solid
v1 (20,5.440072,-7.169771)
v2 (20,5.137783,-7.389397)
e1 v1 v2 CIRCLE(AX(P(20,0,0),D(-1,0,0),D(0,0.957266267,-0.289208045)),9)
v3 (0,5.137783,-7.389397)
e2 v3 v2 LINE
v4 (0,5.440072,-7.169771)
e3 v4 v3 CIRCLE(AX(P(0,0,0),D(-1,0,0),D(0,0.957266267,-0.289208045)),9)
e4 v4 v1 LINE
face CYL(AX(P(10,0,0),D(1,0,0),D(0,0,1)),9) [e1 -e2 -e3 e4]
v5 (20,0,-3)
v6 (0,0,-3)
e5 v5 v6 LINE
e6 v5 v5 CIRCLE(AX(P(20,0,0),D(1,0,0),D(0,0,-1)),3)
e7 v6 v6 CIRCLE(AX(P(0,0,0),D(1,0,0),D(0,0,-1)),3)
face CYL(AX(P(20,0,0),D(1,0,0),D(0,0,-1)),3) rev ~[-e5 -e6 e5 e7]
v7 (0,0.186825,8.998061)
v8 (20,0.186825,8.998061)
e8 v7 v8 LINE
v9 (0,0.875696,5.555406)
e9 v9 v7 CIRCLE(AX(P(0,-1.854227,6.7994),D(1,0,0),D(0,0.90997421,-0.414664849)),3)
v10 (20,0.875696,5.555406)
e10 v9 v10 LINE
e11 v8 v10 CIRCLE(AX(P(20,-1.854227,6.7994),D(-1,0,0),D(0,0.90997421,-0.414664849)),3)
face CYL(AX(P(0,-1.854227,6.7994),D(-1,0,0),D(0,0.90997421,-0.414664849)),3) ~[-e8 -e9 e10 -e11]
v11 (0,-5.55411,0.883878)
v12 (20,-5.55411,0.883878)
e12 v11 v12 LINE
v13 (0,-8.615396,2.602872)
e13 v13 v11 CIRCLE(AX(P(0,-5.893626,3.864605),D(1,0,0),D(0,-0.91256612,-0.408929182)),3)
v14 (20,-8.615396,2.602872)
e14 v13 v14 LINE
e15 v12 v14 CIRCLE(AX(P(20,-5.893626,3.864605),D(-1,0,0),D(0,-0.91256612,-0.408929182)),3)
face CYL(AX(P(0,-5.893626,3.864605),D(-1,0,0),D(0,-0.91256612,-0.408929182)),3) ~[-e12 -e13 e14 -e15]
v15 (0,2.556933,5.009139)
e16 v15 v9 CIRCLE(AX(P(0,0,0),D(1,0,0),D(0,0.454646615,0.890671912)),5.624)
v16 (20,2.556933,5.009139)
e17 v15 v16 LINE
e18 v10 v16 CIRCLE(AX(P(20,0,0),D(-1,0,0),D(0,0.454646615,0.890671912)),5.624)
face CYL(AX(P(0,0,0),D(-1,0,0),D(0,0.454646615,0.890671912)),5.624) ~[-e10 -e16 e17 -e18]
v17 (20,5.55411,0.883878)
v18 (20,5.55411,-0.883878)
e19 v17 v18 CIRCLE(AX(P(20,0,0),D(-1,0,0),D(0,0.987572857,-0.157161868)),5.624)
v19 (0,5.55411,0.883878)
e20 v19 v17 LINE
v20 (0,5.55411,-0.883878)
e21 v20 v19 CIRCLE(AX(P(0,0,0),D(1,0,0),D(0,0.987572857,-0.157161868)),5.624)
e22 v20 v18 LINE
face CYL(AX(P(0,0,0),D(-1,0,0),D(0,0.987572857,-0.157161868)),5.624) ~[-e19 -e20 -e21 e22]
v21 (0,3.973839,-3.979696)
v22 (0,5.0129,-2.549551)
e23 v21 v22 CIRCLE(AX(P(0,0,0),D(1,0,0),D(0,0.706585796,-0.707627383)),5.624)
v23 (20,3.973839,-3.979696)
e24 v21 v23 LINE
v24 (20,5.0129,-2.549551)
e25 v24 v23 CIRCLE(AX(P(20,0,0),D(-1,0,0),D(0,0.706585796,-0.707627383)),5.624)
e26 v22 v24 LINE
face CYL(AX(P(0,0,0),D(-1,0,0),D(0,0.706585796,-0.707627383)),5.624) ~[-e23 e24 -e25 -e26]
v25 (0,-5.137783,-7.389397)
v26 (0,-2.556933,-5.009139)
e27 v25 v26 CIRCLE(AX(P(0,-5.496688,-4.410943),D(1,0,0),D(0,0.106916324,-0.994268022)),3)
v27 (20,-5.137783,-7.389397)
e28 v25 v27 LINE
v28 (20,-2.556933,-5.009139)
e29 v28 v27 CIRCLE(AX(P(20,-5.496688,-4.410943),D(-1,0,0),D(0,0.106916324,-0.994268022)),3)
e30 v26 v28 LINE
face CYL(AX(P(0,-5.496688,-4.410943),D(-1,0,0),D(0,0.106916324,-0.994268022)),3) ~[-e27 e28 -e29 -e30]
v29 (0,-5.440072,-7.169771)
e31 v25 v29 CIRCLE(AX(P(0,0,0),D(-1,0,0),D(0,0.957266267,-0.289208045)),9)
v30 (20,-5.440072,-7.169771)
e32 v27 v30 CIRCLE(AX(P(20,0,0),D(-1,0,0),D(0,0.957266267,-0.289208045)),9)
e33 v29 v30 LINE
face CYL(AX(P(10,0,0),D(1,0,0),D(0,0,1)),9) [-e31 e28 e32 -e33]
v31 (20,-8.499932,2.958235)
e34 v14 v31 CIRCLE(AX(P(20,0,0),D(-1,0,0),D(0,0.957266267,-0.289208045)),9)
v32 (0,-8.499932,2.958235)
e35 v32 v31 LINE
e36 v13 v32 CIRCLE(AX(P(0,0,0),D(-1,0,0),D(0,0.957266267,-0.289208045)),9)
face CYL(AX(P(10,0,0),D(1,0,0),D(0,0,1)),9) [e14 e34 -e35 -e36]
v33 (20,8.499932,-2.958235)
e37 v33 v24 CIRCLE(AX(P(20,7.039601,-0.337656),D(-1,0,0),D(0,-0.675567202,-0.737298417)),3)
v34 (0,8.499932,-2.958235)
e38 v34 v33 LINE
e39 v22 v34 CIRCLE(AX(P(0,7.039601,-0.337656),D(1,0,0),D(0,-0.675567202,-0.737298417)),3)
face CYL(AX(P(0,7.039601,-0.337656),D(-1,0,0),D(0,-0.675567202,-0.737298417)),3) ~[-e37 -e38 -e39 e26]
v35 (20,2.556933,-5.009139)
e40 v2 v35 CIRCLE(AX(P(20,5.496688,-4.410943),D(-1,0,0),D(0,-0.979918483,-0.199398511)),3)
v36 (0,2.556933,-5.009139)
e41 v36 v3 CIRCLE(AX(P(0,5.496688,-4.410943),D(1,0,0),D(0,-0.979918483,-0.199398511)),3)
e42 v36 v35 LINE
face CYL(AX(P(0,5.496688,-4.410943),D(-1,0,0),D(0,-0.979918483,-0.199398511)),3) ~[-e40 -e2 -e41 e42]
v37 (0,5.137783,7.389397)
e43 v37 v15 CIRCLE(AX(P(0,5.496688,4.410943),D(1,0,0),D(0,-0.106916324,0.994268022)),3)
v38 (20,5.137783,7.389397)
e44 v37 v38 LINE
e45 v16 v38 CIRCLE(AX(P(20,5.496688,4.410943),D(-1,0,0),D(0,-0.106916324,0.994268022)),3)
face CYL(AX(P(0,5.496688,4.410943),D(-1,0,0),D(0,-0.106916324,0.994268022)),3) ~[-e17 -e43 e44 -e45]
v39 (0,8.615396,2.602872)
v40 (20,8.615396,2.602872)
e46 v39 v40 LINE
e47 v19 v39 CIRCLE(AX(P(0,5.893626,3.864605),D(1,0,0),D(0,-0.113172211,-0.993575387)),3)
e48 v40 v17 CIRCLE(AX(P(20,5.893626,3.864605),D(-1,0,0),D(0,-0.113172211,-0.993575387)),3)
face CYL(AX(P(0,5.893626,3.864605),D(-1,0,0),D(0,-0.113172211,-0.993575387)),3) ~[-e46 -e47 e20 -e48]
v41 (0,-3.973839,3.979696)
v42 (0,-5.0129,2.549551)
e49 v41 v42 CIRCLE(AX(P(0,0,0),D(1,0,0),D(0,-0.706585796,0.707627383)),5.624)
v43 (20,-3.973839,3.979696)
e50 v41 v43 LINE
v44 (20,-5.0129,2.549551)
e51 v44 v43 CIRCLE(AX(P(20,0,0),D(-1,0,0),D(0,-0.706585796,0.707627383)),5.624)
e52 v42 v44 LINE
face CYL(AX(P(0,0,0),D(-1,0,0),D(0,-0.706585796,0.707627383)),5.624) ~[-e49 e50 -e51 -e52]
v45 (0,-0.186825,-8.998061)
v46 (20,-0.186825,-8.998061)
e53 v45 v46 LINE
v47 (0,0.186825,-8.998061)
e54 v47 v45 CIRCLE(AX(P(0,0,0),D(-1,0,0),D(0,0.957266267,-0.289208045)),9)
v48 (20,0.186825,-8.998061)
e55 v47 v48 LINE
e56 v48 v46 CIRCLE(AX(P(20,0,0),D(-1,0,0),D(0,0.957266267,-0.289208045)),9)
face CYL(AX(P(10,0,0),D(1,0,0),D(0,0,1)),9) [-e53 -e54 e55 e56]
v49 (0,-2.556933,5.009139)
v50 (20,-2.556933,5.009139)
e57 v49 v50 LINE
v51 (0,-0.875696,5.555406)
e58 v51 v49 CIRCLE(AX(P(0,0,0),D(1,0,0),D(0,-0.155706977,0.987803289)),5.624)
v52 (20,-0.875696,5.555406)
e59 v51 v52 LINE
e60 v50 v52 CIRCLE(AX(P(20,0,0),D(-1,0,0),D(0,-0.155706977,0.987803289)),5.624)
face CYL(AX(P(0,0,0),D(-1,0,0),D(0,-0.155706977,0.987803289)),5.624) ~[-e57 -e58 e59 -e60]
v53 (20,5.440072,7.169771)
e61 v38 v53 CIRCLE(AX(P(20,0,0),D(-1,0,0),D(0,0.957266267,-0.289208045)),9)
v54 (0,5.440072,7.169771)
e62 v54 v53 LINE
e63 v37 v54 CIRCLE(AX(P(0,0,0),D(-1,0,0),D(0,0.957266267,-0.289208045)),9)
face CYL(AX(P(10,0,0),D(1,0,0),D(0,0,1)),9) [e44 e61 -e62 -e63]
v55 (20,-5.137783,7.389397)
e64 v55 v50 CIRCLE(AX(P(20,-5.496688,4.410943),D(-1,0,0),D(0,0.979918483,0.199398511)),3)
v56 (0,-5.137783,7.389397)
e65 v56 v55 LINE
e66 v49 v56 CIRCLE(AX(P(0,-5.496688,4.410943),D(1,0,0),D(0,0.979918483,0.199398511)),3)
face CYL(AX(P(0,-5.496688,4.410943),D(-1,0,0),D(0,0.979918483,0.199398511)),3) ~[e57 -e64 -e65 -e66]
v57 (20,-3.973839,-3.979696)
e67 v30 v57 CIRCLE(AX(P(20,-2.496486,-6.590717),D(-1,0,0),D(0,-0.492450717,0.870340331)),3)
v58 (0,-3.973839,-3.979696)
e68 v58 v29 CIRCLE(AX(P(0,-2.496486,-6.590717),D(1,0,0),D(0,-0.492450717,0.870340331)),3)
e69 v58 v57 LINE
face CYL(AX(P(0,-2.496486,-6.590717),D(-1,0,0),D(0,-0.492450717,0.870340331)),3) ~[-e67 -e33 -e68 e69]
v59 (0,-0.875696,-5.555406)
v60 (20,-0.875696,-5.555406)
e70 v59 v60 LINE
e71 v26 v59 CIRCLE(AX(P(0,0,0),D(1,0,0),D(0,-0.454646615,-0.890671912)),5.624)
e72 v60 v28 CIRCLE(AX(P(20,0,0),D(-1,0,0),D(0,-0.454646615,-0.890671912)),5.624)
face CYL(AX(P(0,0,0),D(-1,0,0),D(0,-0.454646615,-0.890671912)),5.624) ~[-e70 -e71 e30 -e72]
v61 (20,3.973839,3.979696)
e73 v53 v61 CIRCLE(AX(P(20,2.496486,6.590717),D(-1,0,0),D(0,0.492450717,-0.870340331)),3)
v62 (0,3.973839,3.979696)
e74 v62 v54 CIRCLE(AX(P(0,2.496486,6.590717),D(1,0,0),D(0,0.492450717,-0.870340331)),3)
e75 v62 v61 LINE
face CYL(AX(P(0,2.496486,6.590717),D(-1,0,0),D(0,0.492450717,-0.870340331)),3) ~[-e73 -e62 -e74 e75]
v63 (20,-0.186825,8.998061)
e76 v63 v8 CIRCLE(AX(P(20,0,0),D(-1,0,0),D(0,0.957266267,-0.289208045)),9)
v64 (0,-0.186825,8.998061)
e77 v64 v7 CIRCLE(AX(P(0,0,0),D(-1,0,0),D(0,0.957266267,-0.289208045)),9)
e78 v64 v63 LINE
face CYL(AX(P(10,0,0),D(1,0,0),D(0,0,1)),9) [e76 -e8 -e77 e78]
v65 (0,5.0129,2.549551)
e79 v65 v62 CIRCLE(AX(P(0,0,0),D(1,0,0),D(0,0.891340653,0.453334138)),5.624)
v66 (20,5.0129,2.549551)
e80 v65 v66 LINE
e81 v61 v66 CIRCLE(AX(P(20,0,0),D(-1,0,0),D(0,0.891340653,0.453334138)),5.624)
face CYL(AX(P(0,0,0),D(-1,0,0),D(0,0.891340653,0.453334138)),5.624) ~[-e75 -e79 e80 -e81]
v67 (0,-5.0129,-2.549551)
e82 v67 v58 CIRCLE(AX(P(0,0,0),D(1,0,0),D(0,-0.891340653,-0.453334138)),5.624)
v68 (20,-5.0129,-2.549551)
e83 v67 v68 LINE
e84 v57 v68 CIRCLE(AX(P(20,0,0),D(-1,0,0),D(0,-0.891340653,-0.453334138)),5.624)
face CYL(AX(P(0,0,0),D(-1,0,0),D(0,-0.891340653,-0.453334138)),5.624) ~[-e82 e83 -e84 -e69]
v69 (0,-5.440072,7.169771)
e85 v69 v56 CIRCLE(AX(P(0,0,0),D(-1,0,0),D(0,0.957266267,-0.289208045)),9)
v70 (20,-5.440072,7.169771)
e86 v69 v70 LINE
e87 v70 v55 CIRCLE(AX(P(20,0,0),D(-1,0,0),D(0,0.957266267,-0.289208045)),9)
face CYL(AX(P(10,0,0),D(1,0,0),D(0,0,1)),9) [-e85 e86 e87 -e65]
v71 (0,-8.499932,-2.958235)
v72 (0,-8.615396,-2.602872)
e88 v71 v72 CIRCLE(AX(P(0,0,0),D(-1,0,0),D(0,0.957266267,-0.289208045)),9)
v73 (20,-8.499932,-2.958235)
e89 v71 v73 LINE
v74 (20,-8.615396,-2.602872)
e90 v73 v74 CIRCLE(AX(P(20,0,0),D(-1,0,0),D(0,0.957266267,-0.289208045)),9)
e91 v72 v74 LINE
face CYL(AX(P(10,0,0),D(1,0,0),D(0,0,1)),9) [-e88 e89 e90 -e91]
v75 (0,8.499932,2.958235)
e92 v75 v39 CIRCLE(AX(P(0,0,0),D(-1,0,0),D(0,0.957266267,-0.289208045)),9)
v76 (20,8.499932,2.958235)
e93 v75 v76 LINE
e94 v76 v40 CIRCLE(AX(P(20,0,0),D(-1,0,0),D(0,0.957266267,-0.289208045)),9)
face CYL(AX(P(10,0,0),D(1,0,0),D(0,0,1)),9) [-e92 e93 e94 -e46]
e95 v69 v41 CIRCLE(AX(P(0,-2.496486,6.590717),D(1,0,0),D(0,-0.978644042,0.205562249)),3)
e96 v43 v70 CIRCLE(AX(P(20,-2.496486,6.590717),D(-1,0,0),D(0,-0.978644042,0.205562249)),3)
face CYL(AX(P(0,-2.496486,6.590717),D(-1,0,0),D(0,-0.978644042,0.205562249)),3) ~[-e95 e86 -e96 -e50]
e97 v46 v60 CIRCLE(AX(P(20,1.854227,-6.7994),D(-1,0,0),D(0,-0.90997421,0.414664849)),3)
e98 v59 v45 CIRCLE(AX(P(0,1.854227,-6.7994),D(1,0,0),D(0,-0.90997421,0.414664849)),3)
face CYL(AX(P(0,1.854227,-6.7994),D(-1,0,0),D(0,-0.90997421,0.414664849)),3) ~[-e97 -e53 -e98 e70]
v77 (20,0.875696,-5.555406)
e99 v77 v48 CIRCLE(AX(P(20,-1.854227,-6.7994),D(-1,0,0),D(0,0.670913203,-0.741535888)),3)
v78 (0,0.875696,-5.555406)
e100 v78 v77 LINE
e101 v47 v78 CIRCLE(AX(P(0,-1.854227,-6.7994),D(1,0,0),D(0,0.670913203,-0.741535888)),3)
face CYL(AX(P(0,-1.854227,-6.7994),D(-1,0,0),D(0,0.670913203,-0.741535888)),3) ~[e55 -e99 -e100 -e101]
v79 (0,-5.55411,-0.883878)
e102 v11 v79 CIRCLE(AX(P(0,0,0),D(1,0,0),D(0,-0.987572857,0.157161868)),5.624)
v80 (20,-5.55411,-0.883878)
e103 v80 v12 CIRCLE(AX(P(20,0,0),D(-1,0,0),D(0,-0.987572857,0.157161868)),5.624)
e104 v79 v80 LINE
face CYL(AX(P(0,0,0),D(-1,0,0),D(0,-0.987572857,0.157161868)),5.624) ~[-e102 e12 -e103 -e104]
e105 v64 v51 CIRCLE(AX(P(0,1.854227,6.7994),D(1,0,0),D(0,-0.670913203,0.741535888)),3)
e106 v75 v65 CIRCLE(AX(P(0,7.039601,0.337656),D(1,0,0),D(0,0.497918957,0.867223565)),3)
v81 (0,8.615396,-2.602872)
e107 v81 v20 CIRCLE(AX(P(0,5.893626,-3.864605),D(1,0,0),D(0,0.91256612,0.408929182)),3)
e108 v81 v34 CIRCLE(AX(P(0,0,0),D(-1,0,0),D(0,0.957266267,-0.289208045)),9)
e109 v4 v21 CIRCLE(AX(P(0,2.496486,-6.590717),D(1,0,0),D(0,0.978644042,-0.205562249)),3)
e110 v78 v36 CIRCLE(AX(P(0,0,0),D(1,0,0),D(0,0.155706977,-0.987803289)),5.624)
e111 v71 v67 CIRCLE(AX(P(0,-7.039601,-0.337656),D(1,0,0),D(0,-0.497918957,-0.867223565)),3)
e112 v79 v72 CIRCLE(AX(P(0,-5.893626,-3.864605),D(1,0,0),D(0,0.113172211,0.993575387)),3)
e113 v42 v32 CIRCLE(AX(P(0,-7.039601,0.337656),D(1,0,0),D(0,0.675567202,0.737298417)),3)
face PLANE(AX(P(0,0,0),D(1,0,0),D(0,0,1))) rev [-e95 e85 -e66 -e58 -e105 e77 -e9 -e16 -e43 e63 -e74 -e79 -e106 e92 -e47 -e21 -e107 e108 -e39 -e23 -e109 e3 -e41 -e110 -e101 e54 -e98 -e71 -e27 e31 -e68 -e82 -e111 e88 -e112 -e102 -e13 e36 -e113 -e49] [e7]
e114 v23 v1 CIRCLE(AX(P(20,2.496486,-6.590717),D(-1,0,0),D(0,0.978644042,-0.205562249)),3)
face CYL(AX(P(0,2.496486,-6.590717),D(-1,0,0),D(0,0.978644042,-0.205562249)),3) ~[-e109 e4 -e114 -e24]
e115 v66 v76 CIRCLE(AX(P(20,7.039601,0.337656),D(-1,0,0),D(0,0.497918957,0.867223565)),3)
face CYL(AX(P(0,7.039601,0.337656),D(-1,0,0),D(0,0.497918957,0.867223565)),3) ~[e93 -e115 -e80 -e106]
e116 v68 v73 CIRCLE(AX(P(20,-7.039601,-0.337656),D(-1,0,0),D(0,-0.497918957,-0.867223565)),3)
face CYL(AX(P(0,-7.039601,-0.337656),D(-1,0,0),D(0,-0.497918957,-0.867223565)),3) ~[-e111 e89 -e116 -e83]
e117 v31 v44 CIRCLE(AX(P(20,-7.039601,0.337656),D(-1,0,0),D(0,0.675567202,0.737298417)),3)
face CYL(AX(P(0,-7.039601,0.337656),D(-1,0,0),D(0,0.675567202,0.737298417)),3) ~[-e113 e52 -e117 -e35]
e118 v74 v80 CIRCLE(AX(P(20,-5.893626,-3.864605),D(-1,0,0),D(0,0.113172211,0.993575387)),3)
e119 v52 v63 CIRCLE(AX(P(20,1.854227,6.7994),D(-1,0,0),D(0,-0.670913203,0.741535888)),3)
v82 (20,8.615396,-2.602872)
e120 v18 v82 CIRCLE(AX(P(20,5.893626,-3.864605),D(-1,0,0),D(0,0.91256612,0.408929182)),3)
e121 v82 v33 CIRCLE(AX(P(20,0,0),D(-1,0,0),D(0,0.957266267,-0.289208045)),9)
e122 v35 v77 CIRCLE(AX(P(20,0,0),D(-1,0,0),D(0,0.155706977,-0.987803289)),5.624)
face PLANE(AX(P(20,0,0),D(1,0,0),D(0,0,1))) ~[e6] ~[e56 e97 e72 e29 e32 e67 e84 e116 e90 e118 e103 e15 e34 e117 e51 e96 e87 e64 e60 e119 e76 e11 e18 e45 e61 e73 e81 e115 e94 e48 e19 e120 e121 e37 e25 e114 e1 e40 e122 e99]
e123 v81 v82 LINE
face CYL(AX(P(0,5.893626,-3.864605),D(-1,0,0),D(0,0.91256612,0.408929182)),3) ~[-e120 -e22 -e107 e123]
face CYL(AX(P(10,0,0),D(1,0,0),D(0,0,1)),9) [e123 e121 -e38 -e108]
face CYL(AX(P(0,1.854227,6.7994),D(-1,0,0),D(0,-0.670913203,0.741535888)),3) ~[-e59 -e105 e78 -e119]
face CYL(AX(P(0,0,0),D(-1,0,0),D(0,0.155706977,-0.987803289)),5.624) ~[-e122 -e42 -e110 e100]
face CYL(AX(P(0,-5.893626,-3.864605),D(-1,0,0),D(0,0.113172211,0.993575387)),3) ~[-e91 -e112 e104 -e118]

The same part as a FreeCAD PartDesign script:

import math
import FreeCAD as App
import Part
import Sketcher

V = App.Vector


def add_polygon(sketch, points):
    """Adds a closed chain of lines whose ends are joined by coincident constraints."""
    first, n = sketch.GeometryCount, len(points)
    for a, b in zip(points, points[1:] + points[:1]):
        sketch.addGeometry(Part.LineSegment(App.Vector(*a, 0), App.Vector(*b, 0)), False)
    for i in range(n):
        sketch.addConstraint(Sketcher.Constraint("Coincident", first + i, 2, first + (i + 1) % n, 1))

doc = App.newDocument("Part")
body = doc.addObject("PartDesign::Body", "Body")

sketch1 = body.newObject("Sketcher::SketchObject", "Sketch")
sketch1.AttachmentSupport = (doc.getObject("XZ_Plane"), [""])
sketch1.MapMode = "FlatFace"
add_polygon(sketch1, [(0, -9), (0, 0), (20, 0), (20, -9)])
sketch1.addConstraint([
    Sketcher.Constraint("Vertical", 0),
    Sketcher.Constraint("Horizontal", 1),
    Sketcher.Constraint("Vertical", 2),
    Sketcher.Constraint("Horizontal", 3),
    Sketcher.Constraint("Coincident", 0, 2, -1, 1),
    Sketcher.Constraint("DistanceX", 1, 1, 1, 2, 20.0),
    Sketcher.Constraint("DistanceY", 0, 1, 0, 2, 9.0),
])
revolution = body.newObject("PartDesign::Revolution", "Revolution")
revolution.Profile = sketch1
revolution.ReferenceAxis = (sketch1, ["H_Axis"])
revolution.Angle = 360

sketch2 = body.newObject("Sketcher::SketchObject", "Sketch001")
sketch2.AttachmentSupport = (doc.getObject("YZ_Plane"), [""])
sketch2.MapMode = "FlatFace"
sketch2.addGeometry([
    Part.ArcOfCircle(Part.Circle(V(0, 0, 0), V(0, 0, 1), 5.6), math.radians(-9.04), math.radians(9.04)),
    Part.ArcOfCircle(Part.Circle(V(5.9, -3.9, 0), V(0, 0, 1), 3), math.radians(24), math.radians(96)),
    Part.ArcOfCircle(Part.Circle(V(0, 0, 0), V(0, 0, 1), 9), math.radians(-17), math.radians(17)),
    Part.ArcOfCircle(Part.Circle(V(5.9, 3.9, 0), V(0, 0, 1), 3), math.radians(-96), math.radians(-24)),
], False)
sketch2.addConstraint([
    Sketcher.Constraint("Coincident", 0, 1, 1, 2),
    Sketcher.Constraint("Coincident", 1, 1, 2, 1),
    Sketcher.Constraint("Coincident", 2, 2, 3, 2),
    Sketcher.Constraint("Coincident", 3, 1, 0, 2),
    Sketcher.Constraint("Coincident", 0, 3, -1, 1),
    Sketcher.Constraint("Coincident", 2, 3, -1, 1),
    Sketcher.Constraint("Equal", 1, 3),
    Sketcher.Constraint("Symmetric", 1, 3, 3, 3, -1),
    Sketcher.Constraint("Radius", 1, 3.0),
    Sketcher.Constraint("Radius", 0, 5.624),
    Sketcher.Constraint("Radius", 2, 9.0254),
    Sketcher.Constraint("DistanceX", 1, 3, 1, 1, 2.737698),
    Sketcher.Constraint("DistanceX", -1, 1, 0, 1, 5.55411),
])
pocket1 = body.newObject("PartDesign::Pocket", "Pocket")
pocket1.Profile = sketch2
pocket1.Type = "ThroughAll"
pocket1.Reversed = True
doc.recompute()

polarpattern = body.newObject("PartDesign::PolarPattern", "PolarPattern")
polarpattern.Originals = [pocket1]
polarpattern.Axis = (doc.getObject("X_Axis"), [""])
polarpattern.Angle = 360
polarpattern.Occurrences = 10
body.Tip = polarpattern

sketch3 = body.newObject("Sketcher::SketchObject", "Sketch002")
sketch3.AttachmentSupport = (doc.getObject("YZ_Plane"), [""])
sketch3.MapMode = "FlatFace"
sketch3.addGeometry(Part.Circle(V(0, 0, 0), V(0, 0, 1), 2.5), False)
sketch3.addConstraint([
    Sketcher.Constraint("Coincident", 0, 3, -1, 1),
    Sketcher.Constraint("Diameter", 0, 5.0),
])
pocket2 = body.newObject("PartDesign::Pocket", "Pocket001")
pocket2.Profile = sketch3
pocket2.Length = 100.000102
pocket2.Midplane = True

sketch4 = body.newObject("Sketcher::SketchObject", "Sketch003")
sketch4.AttachmentSupport = (doc.getObject("YZ_Plane"), [""])
sketch4.MapMode = "FlatFace"
sketch4.AttachmentOffset = App.Placement(V(0, 0, 20), App.Rotation())
sketch4.addGeometry(Part.Circle(V(0, 0, 0), V(0, 0, 1), 3), False)
sketch4.addConstraint([
    Sketcher.Constraint("Coincident", 0, 3, -1, 1),
    Sketcher.Constraint("Diameter", 0, 6.0),
])
pocket3 = body.newObject("PartDesign::Pocket", "Pocket002")
pocket3.Profile = sketch4
pocket3.Length = 23

doc.recompute()
